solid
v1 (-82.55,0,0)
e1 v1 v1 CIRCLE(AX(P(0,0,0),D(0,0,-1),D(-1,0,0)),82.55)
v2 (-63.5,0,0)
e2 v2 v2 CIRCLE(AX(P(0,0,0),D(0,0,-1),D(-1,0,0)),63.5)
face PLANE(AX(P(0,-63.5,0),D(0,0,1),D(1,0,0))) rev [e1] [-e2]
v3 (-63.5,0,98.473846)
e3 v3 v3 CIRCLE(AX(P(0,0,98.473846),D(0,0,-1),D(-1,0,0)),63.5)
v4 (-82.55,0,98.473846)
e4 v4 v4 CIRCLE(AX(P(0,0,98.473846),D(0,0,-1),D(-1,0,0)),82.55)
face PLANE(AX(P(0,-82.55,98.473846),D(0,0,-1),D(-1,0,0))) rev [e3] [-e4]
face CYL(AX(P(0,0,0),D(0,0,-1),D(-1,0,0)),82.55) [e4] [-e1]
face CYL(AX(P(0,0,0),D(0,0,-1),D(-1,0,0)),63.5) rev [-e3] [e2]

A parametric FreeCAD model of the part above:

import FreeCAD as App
import Part
import Sketcher
Q = App.Units.Quantity

doc = App.newDocument("Part")
params = doc.addObject("Spreadsheet::Sheet", "Params")
for row, (alias, value) in enumerate([
    ("sketch1_width", "0.75 in"),
    ("revolution_angle", "360 deg"),
], start=1):
    params.set(f"A{row}", alias)
    params.set(f"B{row}", "=" + value)
    params.setAlias(f"B{row}", alias)

body = doc.addObject("PartDesign::Body", "Body")

sketch1 = doc.addObject("Sketcher::SketchObject", "Sketch")
body.addObject(sketch1)
sketch1.AttachmentSupport = (doc.YZ_Plane, [""])
sketch1.MapMode = "FlatFace"
sketch1.addGeometry(Part.LineSegment(App.Vector(-83, 98, 0), App.Vector(-83, 0, 0)), False)
sketch1.addGeometry(Part.LineSegment(App.Vector(-83, 0, 0), App.Vector(-64, 0, 0)), False)
sketch1.addGeometry(Part.LineSegment(App.Vector(-64, 0, 0), App.Vector(-64, 98, 0)), False)
sketch1.addGeometry(Part.LineSegment(App.Vector(-64, 98, 0), App.Vector(-83, 98, 0)), False)
sketch1.addConstraint(Sketcher.Constraint("Coincident", 0, 2, 1, 1))
sketch1.addConstraint(Sketcher.Constraint("Coincident", 1, 2, 2, 1))
sketch1.addConstraint(Sketcher.Constraint("Coincident", 2, 2, 3, 1))
sketch1.addConstraint(Sketcher.Constraint("Coincident", 3, 2, 0, 1))
sketch1.addConstraint(Sketcher.Constraint("Vertical", 0))
sketch1.addConstraint(Sketcher.Constraint("Horizontal", 1))
sketch1.addConstraint(Sketcher.Constraint("Vertical", 2))
sketch1.addConstraint(Sketcher.Constraint("Horizontal", 3))
sketch1.addConstraint(Sketcher.Constraint("PointOnObject", 0, 2, -1))
sketch1.addConstraint(Sketcher.Constraint("DistanceX", 1, 1, 1, 2, Q("0.75 in")))
sketch1.addConstraint(Sketcher.Constraint("DistanceX", 1, 2, -1, 1, Q("2.5 in")))
sketch1.addConstraint(Sketcher.Constraint("DistanceY", 0, 2, 0, 1, 98.473846))
sketch1.setExpression("Constraints[9]", "Params.sketch1_width")
revolution = doc.addObject("PartDesign::Revolution", "Revolution")
body.addObject(revolution)
revolution.Profile = sketch1
revolution.ReferenceAxis = (sketch1, ["V_Axis"])
revolution.setExpression("Angle", "Params.revolution_angle")

doc.recompute()
